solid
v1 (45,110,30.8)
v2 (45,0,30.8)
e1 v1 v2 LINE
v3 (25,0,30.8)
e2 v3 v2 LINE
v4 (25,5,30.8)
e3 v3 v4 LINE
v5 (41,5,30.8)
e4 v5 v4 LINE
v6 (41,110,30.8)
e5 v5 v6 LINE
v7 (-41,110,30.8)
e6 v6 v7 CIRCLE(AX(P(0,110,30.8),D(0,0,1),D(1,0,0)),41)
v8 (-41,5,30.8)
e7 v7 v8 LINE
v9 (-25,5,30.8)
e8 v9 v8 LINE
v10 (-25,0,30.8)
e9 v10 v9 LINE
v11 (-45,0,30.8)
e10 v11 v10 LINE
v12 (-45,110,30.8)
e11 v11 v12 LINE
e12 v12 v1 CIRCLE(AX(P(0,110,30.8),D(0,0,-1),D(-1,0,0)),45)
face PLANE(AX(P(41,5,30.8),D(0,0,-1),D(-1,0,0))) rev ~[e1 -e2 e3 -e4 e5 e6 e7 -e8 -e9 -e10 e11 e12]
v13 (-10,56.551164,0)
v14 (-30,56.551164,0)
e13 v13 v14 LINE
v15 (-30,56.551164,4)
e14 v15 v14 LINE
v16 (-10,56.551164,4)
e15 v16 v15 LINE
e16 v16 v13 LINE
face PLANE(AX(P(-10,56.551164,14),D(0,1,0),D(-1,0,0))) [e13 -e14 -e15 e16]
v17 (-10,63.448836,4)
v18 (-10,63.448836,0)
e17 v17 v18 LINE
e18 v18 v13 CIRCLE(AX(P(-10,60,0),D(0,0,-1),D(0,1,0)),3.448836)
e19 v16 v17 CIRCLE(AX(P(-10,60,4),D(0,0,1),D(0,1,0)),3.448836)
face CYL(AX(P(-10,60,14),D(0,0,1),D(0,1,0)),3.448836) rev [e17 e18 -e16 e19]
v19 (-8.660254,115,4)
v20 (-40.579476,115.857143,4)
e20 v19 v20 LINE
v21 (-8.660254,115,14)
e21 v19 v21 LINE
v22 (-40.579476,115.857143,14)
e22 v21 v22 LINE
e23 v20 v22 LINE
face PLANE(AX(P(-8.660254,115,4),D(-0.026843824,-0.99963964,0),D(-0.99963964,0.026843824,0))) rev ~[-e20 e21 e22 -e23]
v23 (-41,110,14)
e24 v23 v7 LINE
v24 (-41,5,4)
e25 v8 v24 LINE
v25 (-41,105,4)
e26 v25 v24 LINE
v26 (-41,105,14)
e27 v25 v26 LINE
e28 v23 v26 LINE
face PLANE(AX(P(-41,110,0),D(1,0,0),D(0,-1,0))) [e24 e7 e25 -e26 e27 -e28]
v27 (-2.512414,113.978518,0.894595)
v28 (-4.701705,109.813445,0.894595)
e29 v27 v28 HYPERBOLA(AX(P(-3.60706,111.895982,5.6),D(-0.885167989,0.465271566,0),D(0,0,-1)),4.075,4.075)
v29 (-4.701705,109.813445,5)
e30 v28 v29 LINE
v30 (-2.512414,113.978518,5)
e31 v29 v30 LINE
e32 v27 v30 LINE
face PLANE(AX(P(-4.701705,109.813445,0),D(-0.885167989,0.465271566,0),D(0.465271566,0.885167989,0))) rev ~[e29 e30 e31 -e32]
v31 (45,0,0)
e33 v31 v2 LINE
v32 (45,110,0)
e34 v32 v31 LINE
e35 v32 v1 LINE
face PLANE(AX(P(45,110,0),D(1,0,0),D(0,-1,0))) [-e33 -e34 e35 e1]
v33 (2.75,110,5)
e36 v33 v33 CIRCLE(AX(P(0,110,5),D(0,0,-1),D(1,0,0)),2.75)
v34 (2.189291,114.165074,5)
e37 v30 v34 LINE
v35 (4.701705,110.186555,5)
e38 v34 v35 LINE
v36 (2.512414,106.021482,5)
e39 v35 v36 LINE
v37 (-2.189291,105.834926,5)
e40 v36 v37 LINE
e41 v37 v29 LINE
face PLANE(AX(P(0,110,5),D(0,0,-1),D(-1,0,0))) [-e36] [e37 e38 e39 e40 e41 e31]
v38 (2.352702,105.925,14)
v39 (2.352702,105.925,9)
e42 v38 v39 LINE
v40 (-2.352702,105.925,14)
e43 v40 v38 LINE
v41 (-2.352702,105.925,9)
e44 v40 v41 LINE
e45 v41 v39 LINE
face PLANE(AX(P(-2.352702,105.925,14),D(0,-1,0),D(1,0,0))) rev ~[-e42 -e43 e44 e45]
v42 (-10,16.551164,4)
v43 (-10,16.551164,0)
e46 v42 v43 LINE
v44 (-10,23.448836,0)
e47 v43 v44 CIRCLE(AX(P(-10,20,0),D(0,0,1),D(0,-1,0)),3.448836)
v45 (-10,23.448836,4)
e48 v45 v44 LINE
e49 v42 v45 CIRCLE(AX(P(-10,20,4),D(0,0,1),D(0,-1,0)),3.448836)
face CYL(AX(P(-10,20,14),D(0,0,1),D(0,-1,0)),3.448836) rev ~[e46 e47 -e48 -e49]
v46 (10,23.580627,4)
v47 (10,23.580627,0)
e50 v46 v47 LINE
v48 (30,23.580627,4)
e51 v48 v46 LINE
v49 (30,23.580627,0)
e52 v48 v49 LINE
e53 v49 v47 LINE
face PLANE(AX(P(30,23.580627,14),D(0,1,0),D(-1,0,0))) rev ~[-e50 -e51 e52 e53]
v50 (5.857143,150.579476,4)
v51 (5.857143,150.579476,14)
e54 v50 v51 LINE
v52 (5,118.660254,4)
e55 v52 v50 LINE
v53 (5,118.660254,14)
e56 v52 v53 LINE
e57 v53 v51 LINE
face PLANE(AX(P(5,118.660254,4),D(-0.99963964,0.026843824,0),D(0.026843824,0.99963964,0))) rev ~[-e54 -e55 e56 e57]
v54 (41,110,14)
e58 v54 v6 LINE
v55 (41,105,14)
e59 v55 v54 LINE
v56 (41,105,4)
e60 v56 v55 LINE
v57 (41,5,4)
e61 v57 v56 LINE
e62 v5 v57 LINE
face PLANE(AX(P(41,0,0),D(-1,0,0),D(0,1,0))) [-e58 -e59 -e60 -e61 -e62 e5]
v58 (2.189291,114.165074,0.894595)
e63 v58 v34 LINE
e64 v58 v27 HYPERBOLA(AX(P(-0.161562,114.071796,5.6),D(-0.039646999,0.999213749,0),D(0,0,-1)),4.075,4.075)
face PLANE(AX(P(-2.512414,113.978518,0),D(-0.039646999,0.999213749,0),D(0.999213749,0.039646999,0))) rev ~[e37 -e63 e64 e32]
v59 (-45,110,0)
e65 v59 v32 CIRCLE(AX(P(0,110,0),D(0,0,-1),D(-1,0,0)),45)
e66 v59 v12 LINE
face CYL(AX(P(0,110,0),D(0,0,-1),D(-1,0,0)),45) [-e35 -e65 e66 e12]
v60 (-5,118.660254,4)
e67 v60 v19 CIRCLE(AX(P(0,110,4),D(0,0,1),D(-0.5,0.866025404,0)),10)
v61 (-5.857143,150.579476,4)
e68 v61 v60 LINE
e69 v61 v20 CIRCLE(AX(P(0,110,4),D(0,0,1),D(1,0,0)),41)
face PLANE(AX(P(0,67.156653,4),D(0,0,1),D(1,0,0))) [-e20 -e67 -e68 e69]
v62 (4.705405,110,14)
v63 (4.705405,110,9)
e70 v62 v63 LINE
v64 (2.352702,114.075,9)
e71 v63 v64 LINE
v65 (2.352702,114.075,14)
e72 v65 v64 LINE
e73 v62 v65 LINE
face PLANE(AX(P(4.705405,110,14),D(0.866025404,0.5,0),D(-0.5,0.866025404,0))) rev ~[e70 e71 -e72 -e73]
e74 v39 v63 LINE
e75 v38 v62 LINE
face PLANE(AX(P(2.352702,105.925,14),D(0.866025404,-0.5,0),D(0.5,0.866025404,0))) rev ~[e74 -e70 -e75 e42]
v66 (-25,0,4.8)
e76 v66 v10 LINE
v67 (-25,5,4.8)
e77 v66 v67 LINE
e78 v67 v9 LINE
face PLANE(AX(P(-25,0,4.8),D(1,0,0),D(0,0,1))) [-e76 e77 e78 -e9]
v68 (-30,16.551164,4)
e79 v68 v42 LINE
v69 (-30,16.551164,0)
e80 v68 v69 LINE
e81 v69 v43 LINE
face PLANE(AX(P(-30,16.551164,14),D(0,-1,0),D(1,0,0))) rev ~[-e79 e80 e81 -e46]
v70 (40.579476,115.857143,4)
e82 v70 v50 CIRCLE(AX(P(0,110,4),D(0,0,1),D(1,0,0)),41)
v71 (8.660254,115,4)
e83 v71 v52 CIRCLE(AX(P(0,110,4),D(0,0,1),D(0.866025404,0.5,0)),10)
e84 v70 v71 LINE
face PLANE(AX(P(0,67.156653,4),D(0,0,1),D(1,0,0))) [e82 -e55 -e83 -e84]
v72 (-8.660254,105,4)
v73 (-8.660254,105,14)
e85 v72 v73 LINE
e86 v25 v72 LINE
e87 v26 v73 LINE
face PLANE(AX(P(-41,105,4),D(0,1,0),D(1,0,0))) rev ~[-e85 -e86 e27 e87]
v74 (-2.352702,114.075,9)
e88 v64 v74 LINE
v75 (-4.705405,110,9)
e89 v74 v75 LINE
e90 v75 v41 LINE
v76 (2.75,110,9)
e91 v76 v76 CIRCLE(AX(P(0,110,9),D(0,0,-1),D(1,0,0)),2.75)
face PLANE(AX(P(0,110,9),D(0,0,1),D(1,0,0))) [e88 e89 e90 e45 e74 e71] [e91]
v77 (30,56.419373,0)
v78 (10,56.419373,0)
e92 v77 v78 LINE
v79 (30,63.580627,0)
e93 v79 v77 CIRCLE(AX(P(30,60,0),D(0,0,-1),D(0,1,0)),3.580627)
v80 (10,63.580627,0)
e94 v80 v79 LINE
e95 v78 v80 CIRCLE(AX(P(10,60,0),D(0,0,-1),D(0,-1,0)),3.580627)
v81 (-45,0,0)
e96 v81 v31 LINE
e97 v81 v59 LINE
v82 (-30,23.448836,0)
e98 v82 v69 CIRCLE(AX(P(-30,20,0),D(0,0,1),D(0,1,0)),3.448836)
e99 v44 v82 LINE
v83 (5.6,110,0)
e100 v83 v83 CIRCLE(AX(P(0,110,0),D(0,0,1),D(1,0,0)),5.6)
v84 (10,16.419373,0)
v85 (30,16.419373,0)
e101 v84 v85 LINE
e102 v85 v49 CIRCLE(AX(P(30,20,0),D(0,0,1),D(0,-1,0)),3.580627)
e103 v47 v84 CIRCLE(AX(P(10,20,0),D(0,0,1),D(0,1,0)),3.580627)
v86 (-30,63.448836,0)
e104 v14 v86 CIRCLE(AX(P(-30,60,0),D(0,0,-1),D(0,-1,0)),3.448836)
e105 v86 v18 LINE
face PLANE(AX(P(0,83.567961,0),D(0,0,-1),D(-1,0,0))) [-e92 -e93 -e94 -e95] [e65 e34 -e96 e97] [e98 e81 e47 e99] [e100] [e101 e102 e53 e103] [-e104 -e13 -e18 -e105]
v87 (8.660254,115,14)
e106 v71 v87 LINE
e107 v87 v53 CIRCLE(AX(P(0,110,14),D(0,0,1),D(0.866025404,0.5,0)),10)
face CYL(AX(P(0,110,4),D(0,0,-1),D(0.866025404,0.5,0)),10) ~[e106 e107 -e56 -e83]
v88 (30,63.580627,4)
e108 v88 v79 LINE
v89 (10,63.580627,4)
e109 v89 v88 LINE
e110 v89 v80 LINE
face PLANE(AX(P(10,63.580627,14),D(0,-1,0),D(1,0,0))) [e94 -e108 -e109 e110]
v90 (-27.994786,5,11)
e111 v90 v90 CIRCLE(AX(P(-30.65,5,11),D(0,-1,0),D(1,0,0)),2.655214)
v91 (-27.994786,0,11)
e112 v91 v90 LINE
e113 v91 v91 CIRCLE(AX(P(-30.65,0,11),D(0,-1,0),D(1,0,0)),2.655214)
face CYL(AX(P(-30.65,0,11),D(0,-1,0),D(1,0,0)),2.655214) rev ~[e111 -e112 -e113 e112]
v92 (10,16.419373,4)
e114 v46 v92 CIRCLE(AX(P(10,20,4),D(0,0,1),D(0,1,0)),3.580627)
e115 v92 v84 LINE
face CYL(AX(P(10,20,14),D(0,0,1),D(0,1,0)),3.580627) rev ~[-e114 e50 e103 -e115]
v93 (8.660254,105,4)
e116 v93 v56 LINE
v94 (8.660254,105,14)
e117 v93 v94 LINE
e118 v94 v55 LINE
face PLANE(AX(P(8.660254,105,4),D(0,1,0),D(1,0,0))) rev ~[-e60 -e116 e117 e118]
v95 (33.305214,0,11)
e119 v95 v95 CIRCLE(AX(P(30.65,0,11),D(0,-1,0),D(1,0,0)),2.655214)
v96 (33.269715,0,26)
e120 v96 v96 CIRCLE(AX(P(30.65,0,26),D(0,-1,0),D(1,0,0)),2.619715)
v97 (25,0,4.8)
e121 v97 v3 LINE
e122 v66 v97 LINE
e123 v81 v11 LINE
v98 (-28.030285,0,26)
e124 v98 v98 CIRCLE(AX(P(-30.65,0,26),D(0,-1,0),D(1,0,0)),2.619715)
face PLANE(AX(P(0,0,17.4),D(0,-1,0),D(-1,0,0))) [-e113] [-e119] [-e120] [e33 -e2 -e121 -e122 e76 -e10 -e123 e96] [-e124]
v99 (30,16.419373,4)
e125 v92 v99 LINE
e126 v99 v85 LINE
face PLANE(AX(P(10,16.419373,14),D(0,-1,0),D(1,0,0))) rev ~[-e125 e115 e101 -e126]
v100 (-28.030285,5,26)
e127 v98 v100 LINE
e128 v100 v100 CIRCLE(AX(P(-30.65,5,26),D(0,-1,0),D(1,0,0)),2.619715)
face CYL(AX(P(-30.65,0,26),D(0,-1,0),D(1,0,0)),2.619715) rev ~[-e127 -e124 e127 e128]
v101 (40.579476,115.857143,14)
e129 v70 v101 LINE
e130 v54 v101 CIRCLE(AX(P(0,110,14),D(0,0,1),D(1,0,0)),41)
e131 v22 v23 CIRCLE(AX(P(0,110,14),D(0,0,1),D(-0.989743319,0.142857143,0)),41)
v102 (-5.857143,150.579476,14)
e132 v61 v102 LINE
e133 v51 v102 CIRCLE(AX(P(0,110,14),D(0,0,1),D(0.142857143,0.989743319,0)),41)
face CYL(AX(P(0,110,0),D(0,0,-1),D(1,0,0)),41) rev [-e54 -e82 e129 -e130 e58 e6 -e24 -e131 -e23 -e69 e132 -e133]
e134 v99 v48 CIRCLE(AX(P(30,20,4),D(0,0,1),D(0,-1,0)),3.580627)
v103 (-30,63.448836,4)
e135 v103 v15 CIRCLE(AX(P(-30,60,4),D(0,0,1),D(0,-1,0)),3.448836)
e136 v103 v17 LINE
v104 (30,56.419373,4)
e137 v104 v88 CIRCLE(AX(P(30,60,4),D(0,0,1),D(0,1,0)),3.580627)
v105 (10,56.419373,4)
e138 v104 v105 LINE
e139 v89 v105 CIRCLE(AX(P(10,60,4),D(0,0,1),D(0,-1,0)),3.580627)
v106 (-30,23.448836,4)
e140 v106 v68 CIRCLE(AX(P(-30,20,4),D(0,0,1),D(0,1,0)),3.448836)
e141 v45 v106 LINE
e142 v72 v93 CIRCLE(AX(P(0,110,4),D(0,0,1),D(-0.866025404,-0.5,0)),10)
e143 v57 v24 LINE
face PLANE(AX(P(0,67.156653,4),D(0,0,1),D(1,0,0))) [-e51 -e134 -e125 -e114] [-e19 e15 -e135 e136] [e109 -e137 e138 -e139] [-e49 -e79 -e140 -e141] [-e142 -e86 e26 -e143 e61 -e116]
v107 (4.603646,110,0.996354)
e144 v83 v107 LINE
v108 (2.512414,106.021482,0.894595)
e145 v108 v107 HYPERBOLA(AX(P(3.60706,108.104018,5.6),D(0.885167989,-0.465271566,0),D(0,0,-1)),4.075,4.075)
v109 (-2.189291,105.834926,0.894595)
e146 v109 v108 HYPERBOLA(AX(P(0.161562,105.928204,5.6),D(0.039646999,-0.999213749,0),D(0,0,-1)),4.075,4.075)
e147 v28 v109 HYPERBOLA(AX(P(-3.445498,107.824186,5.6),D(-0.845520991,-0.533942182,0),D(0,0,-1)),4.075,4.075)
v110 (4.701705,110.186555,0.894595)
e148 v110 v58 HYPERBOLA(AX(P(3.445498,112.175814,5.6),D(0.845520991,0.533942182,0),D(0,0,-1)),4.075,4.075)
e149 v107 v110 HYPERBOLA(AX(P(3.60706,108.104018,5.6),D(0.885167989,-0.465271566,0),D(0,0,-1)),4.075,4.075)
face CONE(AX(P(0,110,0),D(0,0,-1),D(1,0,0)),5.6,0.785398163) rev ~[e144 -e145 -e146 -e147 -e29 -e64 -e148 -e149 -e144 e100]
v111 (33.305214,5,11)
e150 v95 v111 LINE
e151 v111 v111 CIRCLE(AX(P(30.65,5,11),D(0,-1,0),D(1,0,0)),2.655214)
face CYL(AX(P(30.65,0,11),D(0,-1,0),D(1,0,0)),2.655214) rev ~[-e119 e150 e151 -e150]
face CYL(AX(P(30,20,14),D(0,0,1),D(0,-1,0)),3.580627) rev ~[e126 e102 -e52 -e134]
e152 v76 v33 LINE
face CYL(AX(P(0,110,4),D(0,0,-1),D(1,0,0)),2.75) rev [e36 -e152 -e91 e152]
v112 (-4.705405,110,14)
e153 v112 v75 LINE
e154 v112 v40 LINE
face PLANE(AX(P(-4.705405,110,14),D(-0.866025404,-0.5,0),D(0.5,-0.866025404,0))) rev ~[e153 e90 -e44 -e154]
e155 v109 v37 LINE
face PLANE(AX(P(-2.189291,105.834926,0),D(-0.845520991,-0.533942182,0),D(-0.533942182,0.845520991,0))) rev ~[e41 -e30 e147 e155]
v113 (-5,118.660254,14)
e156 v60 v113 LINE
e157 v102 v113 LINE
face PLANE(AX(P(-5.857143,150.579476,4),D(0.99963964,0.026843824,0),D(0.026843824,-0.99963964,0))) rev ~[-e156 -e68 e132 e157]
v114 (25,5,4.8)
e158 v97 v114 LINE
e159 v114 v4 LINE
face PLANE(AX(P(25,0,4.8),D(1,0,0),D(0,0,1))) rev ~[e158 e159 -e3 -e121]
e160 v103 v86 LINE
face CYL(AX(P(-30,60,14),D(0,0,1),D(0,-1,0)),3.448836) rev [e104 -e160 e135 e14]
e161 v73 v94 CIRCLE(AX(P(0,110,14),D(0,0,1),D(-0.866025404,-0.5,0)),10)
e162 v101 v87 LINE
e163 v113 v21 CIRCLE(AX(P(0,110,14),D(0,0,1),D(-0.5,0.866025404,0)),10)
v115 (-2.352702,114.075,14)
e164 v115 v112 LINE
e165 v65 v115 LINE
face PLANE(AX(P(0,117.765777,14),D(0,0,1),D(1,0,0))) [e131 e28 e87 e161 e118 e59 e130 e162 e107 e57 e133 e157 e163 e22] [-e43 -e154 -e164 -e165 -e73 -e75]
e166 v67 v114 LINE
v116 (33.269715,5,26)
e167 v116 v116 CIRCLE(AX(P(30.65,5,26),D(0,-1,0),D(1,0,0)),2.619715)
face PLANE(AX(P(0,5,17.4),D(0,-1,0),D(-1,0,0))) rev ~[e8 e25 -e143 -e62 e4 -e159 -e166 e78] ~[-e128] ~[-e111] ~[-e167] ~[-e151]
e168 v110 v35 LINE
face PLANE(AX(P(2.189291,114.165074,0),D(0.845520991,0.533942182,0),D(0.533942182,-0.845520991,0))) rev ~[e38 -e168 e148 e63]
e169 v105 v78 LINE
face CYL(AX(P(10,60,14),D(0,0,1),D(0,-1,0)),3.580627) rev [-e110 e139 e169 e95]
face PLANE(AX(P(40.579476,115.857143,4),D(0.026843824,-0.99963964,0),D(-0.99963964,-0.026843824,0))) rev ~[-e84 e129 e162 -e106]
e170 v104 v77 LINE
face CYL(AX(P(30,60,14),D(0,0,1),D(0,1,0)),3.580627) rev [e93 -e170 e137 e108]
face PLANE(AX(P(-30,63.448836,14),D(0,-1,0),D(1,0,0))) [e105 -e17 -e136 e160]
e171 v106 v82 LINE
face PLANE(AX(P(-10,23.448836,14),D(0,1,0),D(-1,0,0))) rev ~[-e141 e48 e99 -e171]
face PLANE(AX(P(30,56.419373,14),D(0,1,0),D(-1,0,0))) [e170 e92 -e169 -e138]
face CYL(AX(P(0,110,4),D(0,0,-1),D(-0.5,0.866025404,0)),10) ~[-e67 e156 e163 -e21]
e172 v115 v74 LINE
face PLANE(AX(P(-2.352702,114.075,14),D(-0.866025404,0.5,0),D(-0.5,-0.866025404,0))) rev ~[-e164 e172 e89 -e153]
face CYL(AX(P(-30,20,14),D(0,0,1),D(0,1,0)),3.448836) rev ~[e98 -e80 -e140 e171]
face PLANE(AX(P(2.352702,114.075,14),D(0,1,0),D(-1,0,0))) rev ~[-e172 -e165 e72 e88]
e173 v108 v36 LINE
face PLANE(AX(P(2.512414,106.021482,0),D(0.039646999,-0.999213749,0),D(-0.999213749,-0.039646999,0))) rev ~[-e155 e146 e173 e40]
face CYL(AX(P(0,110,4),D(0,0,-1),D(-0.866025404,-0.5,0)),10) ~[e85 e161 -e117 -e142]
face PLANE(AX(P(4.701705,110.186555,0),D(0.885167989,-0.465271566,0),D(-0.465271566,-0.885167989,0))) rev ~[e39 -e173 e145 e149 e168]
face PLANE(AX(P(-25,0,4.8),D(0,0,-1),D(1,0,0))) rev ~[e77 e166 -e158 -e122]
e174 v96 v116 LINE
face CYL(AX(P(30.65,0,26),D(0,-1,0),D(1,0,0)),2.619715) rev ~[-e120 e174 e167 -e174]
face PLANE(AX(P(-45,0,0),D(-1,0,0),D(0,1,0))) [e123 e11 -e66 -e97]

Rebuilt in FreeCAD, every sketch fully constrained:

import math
import FreeCAD as App
import Part
import Sketcher

V = App.Vector
Q = App.Units.Quantity

doc = App.newDocument("Part")
body = doc.addObject("PartDesign::Body", "Body")

sketch1 = doc.addObject("Sketcher::SketchObject", "Sketch")
body.addObject(sketch1)
sketch1.AttachmentSupport = (doc.XY_Plane, [""])
sketch1.MapMode = "FlatFace"
sketch1.addGeometry(Part.LineSegment(V(-41, 0, 0), V(41, 0, 0)), False)
sketch1.addGeometry(Part.LineSegment(V(41, 0, 0), V(41, 110, 0)), False)
sketch1.addGeometry(Part.ArcOfCircle(Part.Circle(V(0, 110, 0), V(0, 0, 1), 41), math.radians(0), math.radians(180)), False)
sketch1.addGeometry(Part.LineSegment(V(-41, 110, 0), V(-41, 0, 0)), False)
sketch1.addConstraint(Sketcher.Constraint("Coincident", 0, 2, 1, 1))
sketch1.addConstraint(Sketcher.Constraint("Tangent", 1, 2, 2, 1))
sketch1.addConstraint(Sketcher.Constraint("Tangent", 2, 2, 3, 1))
sketch1.addConstraint(Sketcher.Constraint("Coincident", 3, 2, 0, 1))
sketch1.addConstraint(Sketcher.Constraint("Horizontal", 0))
sketch1.addConstraint(Sketcher.Constraint("Vertical", 1))
sketch1.addConstraint(Sketcher.Constraint("Vertical", 3))
sketch1.addConstraint(Sketcher.Constraint("Symmetric", 0, 2, 3, 2, -1, 1))
sketch1.addConstraint(Sketcher.Constraint("Radius", 2, 41.0))
sketch1.addConstraint(Sketcher.Constraint("DistanceY", 1, 1, 1, 2, 110.0))
pad1 = doc.addObject("PartDesign::Pad", "Pad")
body.addObject(pad1)
pad1.Profile = sketch1
pad1.Length = 4

sketch2 = doc.addObject("Sketcher::SketchObject", "Sketch001")
body.addObject(sketch2)
sketch2.AttachmentSupport = (doc.XY_Plane, [""])
sketch2.MapMode = "FlatFace"
sketch2.AttachmentOffset = App.Placement(V(0, 0, 4), App.Rotation())
sketch2.addGeometry(Part.LineSegment(V(-41, 105, 0), V(-8.660254, 105, 0)), False)
sketch2.addGeometry(Part.ArcOfCircle(Part.Circle(V(0, 110, 0), V(0, 0, 1), 10), math.radians(-150), math.radians(-30)), False)
sketch2.addGeometry(Part.LineSegment(V(8.660254, 105, 0), V(41, 105, 0)), False)
sketch2.addGeometry(Part.LineSegment(V(41, 105, 0), V(41, 110, 0)), False)
sketch2.addGeometry(Part.ArcOfCircle(Part.Circle(V(0, 110, 0), V(0, 0, 1), 41), math.radians(0), math.radians(8.213211)), False)
sketch2.addGeometry(Part.LineSegment(V(40.579476, 115.857143, 0), V(8.660254, 115, 0)), False)
sketch2.addGeometry(Part.ArcOfCircle(Part.Circle(V(0, 110, 0), V(0, 0, 1), 10), math.radians(30), math.radians(60)), False)
sketch2.addGeometry(Part.LineSegment(V(5, 118.660254, 0), V(5.857143, 150.579476, 0)), False)
sketch2.addGeometry(Part.ArcOfCircle(Part.Circle(V(0, 110, 0), V(0, 0, 1), 41), math.radians(81.786789), math.radians(98.213211)), False)
sketch2.addGeometry(Part.LineSegment(V(-5.857143, 150.579476, 0), V(-5, 118.660254, 0)), False)
sketch2.addGeometry(Part.ArcOfCircle(Part.Circle(V(0, 110, 0), V(0, 0, 1), 10), math.radians(120), math.radians(150)), False)
sketch2.addGeometry(Part.LineSegment(V(-8.660254, 115, 0), V(-40.579476, 115.857143, 0)), False)
sketch2.addGeometry(Part.ArcOfCircle(Part.Circle(V(0, 110, 0), V(0, 0, 1), 41), math.radians(171.786789), math.radians(180)), False)
sketch2.addGeometry(Part.LineSegment(V(-41, 110, 0), V(-41, 105, 0)), False)
sketch2.addGeometry(Part.Circle(V(0, 110, 0), V(0, 0, 1), 2.75), False)
sketch2.addConstraint(Sketcher.Constraint("Coincident", 0, 2, 1, 1))
sketch2.addConstraint(Sketcher.Constraint("Coincident", 1, 2, 2, 1))
sketch2.addConstraint(Sketcher.Constraint("Coincident", 2, 2, 3, 1))
sketch2.addConstraint(Sketcher.Constraint("Tangent", 3, 2, 4, 1))
sketch2.addConstraint(Sketcher.Constraint("Coincident", 4, 2, 5, 1))
sketch2.addConstraint(Sketcher.Constraint("Coincident", 5, 2, 6, 1))
sketch2.addConstraint(Sketcher.Constraint("Coincident", 6, 2, 7, 1))
sketch2.addConstraint(Sketcher.Constraint("Coincident", 7, 2, 8, 1))
sketch2.addConstraint(Sketcher.Constraint("Coincident", 8, 2, 9, 1))
sketch2.addConstraint(Sketcher.Constraint("Coincident", 9, 2, 10, 1))
sketch2.addConstraint(Sketcher.Constraint("Coincident", 10, 2, 11, 1))
sketch2.addConstraint(Sketcher.Constraint("Coincident", 11, 2, 12, 1))
sketch2.addConstraint(Sketcher.Constraint("Tangent", 12, 2, 13, 1))
sketch2.addConstraint(Sketcher.Constraint("Coincident", 13, 2, 0, 1))
sketch2.addConstraint(Sketcher.Constraint("Horizontal", 0))
sketch2.addConstraint(Sketcher.Constraint("Horizontal", 2))
sketch2.addConstraint(Sketcher.Constraint("Vertical", 3))
sketch2.addConstraint(Sketcher.Constraint("Vertical", 13))
sketch2.addConstraint(Sketcher.Constraint("Coincident", 4, 3, 1, 3))
sketch2.addConstraint(Sketcher.Constraint("Coincident", 6, 3, 1, 3))
sketch2.addConstraint(Sketcher.Constraint("Coincident", 8, 3, 1, 3))
sketch2.addConstraint(Sketcher.Constraint("Coincident", 10, 3, 1, 3))
sketch2.addConstraint(Sketcher.Constraint("Coincident", 12, 3, 1, 3))
sketch2.addConstraint(Sketcher.Constraint("Coincident", 14, 3, 1, 3))
sketch2.addConstraint(Sketcher.Constraint("Equal", 1, 6))
sketch2.addConstraint(Sketcher.Constraint("Equal", 4, 8))
sketch2.addConstraint(Sketcher.Constraint("Equal", 6, 10))
sketch2.addConstraint(Sketcher.Constraint("Equal", 8, 12))
sketch2.addConstraint(Sketcher.Constraint("Symmetric", 0, 2, 1, 2, -2))
sketch2.addConstraint(Sketcher.Constraint("Perpendicular", 5, 9))
sketch2.addConstraint(Sketcher.Constraint("Perpendicular", 7, 11))
sketch2.addConstraint(Sketcher.Constraint("Horizontal", 7, 2, 8, 2))
sketch2.addConstraint(Sketcher.Constraint("Horizontal", 6, 2, 9, 2))
sketch2.addConstraint(Sketcher.Constraint("Horizontal", 5, 2, 10, 2))
sketch2.addConstraint(Sketcher.Constraint("Vertical", 1, 2, 5, 2))
sketch2.addConstraint(Sketcher.Constraint("Equal", 5, 7))
sketch2.addConstraint(Sketcher.Constraint("Radius", 1, 10.0))
sketch2.addConstraint(Sketcher.Constraint("Radius", 4, 41.0))
sketch2.addConstraint(Sketcher.Constraint("Diameter", 14, 5.5))
sketch2.addConstraint(Sketcher.Constraint("DistanceY", 3, 1, 3, 2, 5.0))
sketch2.addConstraint(Sketcher.Constraint("DistanceY", -1, 1, 1, 3, 110.0))
sketch2.addConstraint(Sketcher.Constraint("Distance", 5, 31.930729))
pad2 = doc.addObject("PartDesign::Pad", "Pad001")
body.addObject(pad2)
pad2.Profile = sketch2
pad2.Length = 10

sketch3 = doc.addObject("Sketcher::SketchObject", "Sketch002")
body.addObject(sketch3)
sketch3.AttachmentSupport = (doc.XY_Plane, [""])
sketch3.MapMode = "FlatFace"
sketch3.addGeometry(Part.LineSegment(V(41, 0, 0), V(41, 110, 0)), False)
sketch3.addGeometry(Part.ArcOfCircle(Part.Circle(V(0, 110, 0), V(0, 0, 1), 41), math.radians(0), math.radians(180)), False)
sketch3.addGeometry(Part.LineSegment(V(-41, 110, 0), V(-41, 0, 0)), False)
sketch3.addGeometry(Part.LineSegment(V(-41, 0, 0), V(-45, 0, 0)), False)
sketch3.addGeometry(Part.LineSegment(V(-45, 0, 0), V(-45, 110, 0)), False)
sketch3.addGeometry(Part.ArcOfCircle(Part.Circle(V(0, 110, 0), V(0, 0, 1), 45), math.radians(0), math.radians(180)), False)
sketch3.addGeometry(Part.LineSegment(V(45, 110, 0), V(45, 0, 0)), False)
sketch3.addGeometry(Part.LineSegment(V(45, 0, 0), V(41, 0, 0)), False)
sketch3.addConstraint(Sketcher.Constraint("Tangent", 0, 2, 1, 1))
sketch3.addConstraint(Sketcher.Constraint("Tangent", 1, 2, 2, 1))
sketch3.addConstraint(Sketcher.Constraint("Coincident", 2, 2, 3, 1))
sketch3.addConstraint(Sketcher.Constraint("Coincident", 3, 2, 4, 1))
sketch3.addConstraint(Sketcher.Constraint("Tangent", 4, 2, 5, 2))
sketch3.addConstraint(Sketcher.Constraint("Tangent", 5, 1, 6, 1))
sketch3.addConstraint(Sketcher.Constraint("Coincident", 6, 2, 7, 1))
sketch3.addConstraint(Sketcher.Constraint("Coincident", 7, 2, 0, 1))
sketch3.addConstraint(Sketcher.Constraint("Vertical", 0))
sketch3.addConstraint(Sketcher.Constraint("Vertical", 2))
sketch3.addConstraint(Sketcher.Constraint("Horizontal", 3))
sketch3.addConstraint(Sketcher.Constraint("Vertical", 4))
sketch3.addConstraint(Sketcher.Constraint("Vertical", 6))
sketch3.addConstraint(Sketcher.Constraint("Horizontal", 7))
sketch3.addConstraint(Sketcher.Constraint("Coincident", 5, 3, 1, 3))
sketch3.addConstraint(Sketcher.Constraint("Symmetric", 3, 2, 6, 2, -1, 1))
sketch3.addConstraint(Sketcher.Constraint("PointOnObject", 2, 2, -1))
sketch3.addConstraint(Sketcher.Constraint("Radius", 1, 41.0))
sketch3.addConstraint(Sketcher.Constraint("Radius", 5, 45.0))
sketch3.addConstraint(Sketcher.Constraint("DistanceY", 0, 1, 0, 2, 110.0))
pad3 = doc.addObject("PartDesign::Pad", "Pad002")
body.addObject(pad3)
pad3.Profile = sketch3
pad3.Length = 30.8

sketch4 = doc.addObject("Sketcher::SketchObject", "Sketch003")
body.addObject(sketch4)
sketch4.AttachmentSupport = (doc.XY_Plane, [""])
sketch4.MapMode = "FlatFace"
sketch4.AttachmentOffset = App.Placement(V(0, 0, 4), App.Rotation())
sketch4.addGeometry(Part.Circle(V(0, 110, 0), V(0, 0, 1), 2.75), False)
sketch4.addConstraint(Sketcher.Constraint("PointOnObject", 0, 3, -2))
sketch4.addConstraint(Sketcher.Constraint("Diameter", 0, 5.5))
sketch4.addConstraint(Sketcher.Constraint("DistanceY", -1, 1, 0, 3, 110.0))
pocket1 = doc.addObject("PartDesign::Pocket", "Pocket")
body.addObject(pocket1)
pocket1.Profile = sketch4
pocket1.Length = 4

sketch5 = doc.addObject("Sketcher::SketchObject", "Sketch004")
body.addObject(sketch5)
sketch5.AttachmentSupport = (doc.XY_Plane, [""])
sketch5.MapMode = "FlatFace"
sketch5.addGeometry(Part.Circle(V(0, 110, 0), V(0, 0, 1), 2.75), False)
sketch5.addConstraint(Sketcher.Constraint("PointOnObject", 0, 3, -2))
sketch5.addConstraint(Sketcher.Constraint("Diameter", 0, 5.5))
sketch5.addConstraint(Sketcher.Constraint("DistanceY", -1, 1, 0, 3, 110.0))
doc.recompute()
hole = doc.addObject("PartDesign::Hole", "Hole")
body.addObject(hole)
hole.Profile = sketch5
hole.ThreadType = "None"
hole.Diameter = 5.5
hole.DepthType = "ThroughAll"
hole.HoleCutType = "Countersink"
hole.HoleCutDiameter = 11.2
hole.HoleCutCountersinkAngle = 90
hole.Reversed = True

sketch6 = doc.addObject("Sketcher::SketchObject", "Sketch005")
body.addObject(sketch6)
sketch6.AttachmentSupport = (doc.XY_Plane, [""])
sketch6.MapMode = "FlatFace"
sketch6.addGeometry(Part.LineSegment(V(-2.189291, 105.834926, 0), V(-4.701705, 109.813445, 0)), False)
sketch6.addGeometry(Part.LineSegment(V(-4.701705, 109.813445, 0), V(-2.512414, 113.978518, 0)), False)
sketch6.addGeometry(Part.LineSegment(V(-2.512414, 113.978518, 0), V(2.189291, 114.165074, 0)), False)
sketch6.addGeometry(Part.LineSegment(V(2.189291, 114.165074, 0), V(4.701705, 110.186555, 0)), False)
sketch6.addGeometry(Part.LineSegment(V(4.701705, 110.186555, 0), V(2.512414, 106.021482, 0)), False)
sketch6.addGeometry(Part.LineSegment(V(2.512414, 106.021482, 0), V(-2.189291, 105.834926, 0)), False)
sketch6.addConstraint(Sketcher.Constraint("Coincident", 0, 2, 1, 1))
sketch6.addConstraint(Sketcher.Constraint("Coincident", 1, 2, 2, 1))
sketch6.addConstraint(Sketcher.Constraint("Coincident", 2, 2, 3, 1))
sketch6.addConstraint(Sketcher.Constraint("Coincident", 3, 2, 4, 1))
sketch6.addConstraint(Sketcher.Constraint("Coincident", 4, 2, 5, 1))
sketch6.addConstraint(Sketcher.Constraint("Coincident", 5, 2, 0, 1))
sketch6.addConstraint(Sketcher.Constraint("Parallel", 0, 3))
sketch6.addConstraint(Sketcher.Constraint("Parallel", 1, 4))
sketch6.addConstraint(Sketcher.Constraint("Parallel", 2, 5))
sketch6.addConstraint(Sketcher.Constraint("Equal", 0, 1))
sketch6.addConstraint(Sketcher.Constraint("Equal", 1, 2))
sketch6.addConstraint(Sketcher.Constraint("Equal", 2, 3))
sketch6.addConstraint(Sketcher.Constraint("DistanceY", -1, 1, 1, 2, 113.978518))
sketch6.addConstraint(Sketcher.Constraint("DistanceX", -1, 1, 2, 2, 2.189291))
sketch6.addConstraint(Sketcher.Constraint("DistanceY", -1, 1, 4, 2, 106.021482))
sketch6.addConstraint(Sketcher.Constraint("DistanceX", 5, 2, -1, 1, 2.189291))
sketch6.addConstraint(Sketcher.Constraint("DistanceX", 0, 2, 1, 2, 2.189291))
sketch6.addConstraint(Sketcher.Constraint("DistanceY", 0, 2, 2, 2, 4.351629))
pocket2 = doc.addObject("PartDesign::Pocket", "Pocket001")
body.addObject(pocket2)
pocket2.Profile = sketch6
pocket2.Length = 5
pocket2.Reversed = True

sketch7 = doc.addObject("Sketcher::SketchObject", "Sketch006")
body.addObject(sketch7)
sketch7.AttachmentSupport = (doc.XY_Plane, [""])
sketch7.MapMode = "FlatFace"
sketch7.AttachmentOffset = App.Placement(V(0, 0, 14), App.Rotation())
sketch7.addGeometry(Part.LineSegment(V(4.705405, 110, 0), V(2.352702, 114.075, 0)), False)
sketch7.addGeometry(Part.LineSegment(V(2.352702, 114.075, 0), V(-2.352702, 114.075, 0)), False)
sketch7.addGeometry(Part.LineSegment(V(-2.352702, 114.075, 0), V(-4.705405, 110, 0)), False)
sketch7.addGeometry(Part.LineSegment(V(-4.705405, 110, 0), V(-2.352702, 105.925, 0)), False)
sketch7.addGeometry(Part.LineSegment(V(-2.352702, 105.925, 0), V(2.352702, 105.925, 0)), False)
sketch7.addGeometry(Part.LineSegment(V(2.352702, 105.925, 0), V(4.705405, 110, 0)), False)
sketch7.addConstraint(Sketcher.Constraint("Coincident", 0, 2, 1, 1))
sketch7.addConstraint(Sketcher.Constraint("Coincident", 1, 2, 2, 1))
sketch7.addConstraint(Sketcher.Constraint("Coincident", 2, 2, 3, 1))
sketch7.addConstraint(Sketcher.Constraint("Coincident", 3, 2, 4, 1))
sketch7.addConstraint(Sketcher.Constraint("Coincident", 4, 2, 5, 1))
sketch7.addConstraint(Sketcher.Constraint("Coincident", 5, 2, 0, 1))
sketch7.addConstraint(Sketcher.Constraint("Horizontal", 1))
sketch7.addConstraint(Sketcher.Constraint("Horizontal", 4))
sketch7.addConstraint(Sketcher.Constraint("Symmetric", 2, 2, 5, 2, -2))
sketch7.addConstraint(Sketcher.Constraint("Parallel", 0, 3))
sketch7.addConstraint(Sketcher.Constraint("Parallel", 2, 5))
sketch7.addConstraint(Sketcher.Constraint("Vertical", 1, 2, 3, 2))
sketch7.addConstraint(Sketcher.Constraint("Vertical", 0, 2, 4, 2))
sketch7.addConstraint(Sketcher.Constraint("Angle", 0, Q("120 deg")))
sketch7.addConstraint(Sketcher.Constraint("DistanceY", -1, 1, 2, 2, 110.0))
sketch7.addConstraint(Sketcher.Constraint("DistanceY", 3, 2, 1, 2, 8.15))
sketch7.addConstraint(Sketcher.Constraint("DistanceX", 1, 2, 1, 1, 4.705405))
pocket3 = doc.addObject("PartDesign::Pocket", "Pocket002")
body.addObject(pocket3)
pocket3.Profile = sketch7
pocket3.Length = 5

sketch8 = doc.addObject("Sketcher::SketchObject", "Sketch007")
body.addObject(sketch8)
sketch8.AttachmentSupport = (doc.XY_Plane, [""])
sketch8.MapMode = "FlatFace"
sketch8.AttachmentOffset = App.Placement(V(0, 0, 14), App.Rotation())
sketch8.addGeometry(Part.LineSegment(V(-10, 63.448836, 0), V(-30, 63.448836, 0)), False)
sketch8.addGeometry(Part.ArcOfCircle(Part.Circle(V(-30, 60, 0), V(0, 0, 1), 3.448836), math.radians(90), math.radians(270)), False)
sketch8.addGeometry(Part.LineSegment(V(-30, 56.551164, 0), V(-10, 56.551164, 0)), False)
sketch8.addGeometry(Part.ArcOfCircle(Part.Circle(V(-10, 60, 0), V(0, 0, 1), 3.448836), math.radians(-90), math.radians(90)), False)
sketch8.addGeometry(Part.LineSegment(V(30, 63.580627, 0), V(10, 63.580627, 0)), False)
sketch8.addGeometry(Part.ArcOfCircle(Part.Circle(V(10, 60, 0), V(0, 0, 1), 3.580627), math.radians(90), math.radians(270)), False)
sketch8.addGeometry(Part.LineSegment(V(10, 56.419373, 0), V(30, 56.419373, 0)), False)
sketch8.addGeometry(Part.ArcOfCircle(Part.Circle(V(30, 60, 0), V(0, 0, 1), 3.580627), math.radians(-90), math.radians(90)), False)
sketch8.addGeometry(Part.LineSegment(V(-30, 16.551164, 0), V(-10, 16.551164, 0)), False)
sketch8.addGeometry(Part.ArcOfCircle(Part.Circle(V(-10, 20, 0), V(0, 0, 1), 3.448836), math.radians(-90), math.radians(90)), False)
sketch8.addGeometry(Part.LineSegment(V(-10, 23.448836, 0), V(-30, 23.448836, 0)), False)
sketch8.addGeometry(Part.ArcOfCircle(Part.Circle(V(-30, 20, 0), V(0, 0, 1), 3.448836), math.radians(90), math.radians(270)), False)
sketch8.addGeometry(Part.LineSegment(V(10, 16.419373, 0), V(30, 16.419373, 0)), False)
sketch8.addGeometry(Part.ArcOfCircle(Part.Circle(V(30, 20, 0), V(0, 0, 1), 3.580627), math.radians(-90), math.radians(90)), False)
sketch8.addGeometry(Part.LineSegment(V(30, 23.580627, 0), V(10, 23.580627, 0)), False)
sketch8.addGeometry(Part.ArcOfCircle(Part.Circle(V(10, 20, 0), V(0, 0, 1), 3.580627), math.radians(90), math.radians(270)), False)
sketch8.addConstraint(Sketcher.Constraint("Tangent", 0, 2, 1, 1))
sketch8.addConstraint(Sketcher.Constraint("Tangent", 1, 2, 2, 1))
sketch8.addConstraint(Sketcher.Constraint("Tangent", 2, 2, 3, 1))
sketch8.addConstraint(Sketcher.Constraint("Tangent", 3, 2, 0, 1))
sketch8.addConstraint(Sketcher.Constraint("Tangent", 4, 2, 5, 1))
sketch8.addConstraint(Sketcher.Constraint("Tangent", 5, 2, 6, 1))
sketch8.addConstraint(Sketcher.Constraint("Tangent", 6, 2, 7, 1))
sketch8.addConstraint(Sketcher.Constraint("Tangent", 7, 2, 4, 1))
sketch8.addConstraint(Sketcher.Constraint("Tangent", 8, 2, 9, 1))
sketch8.addConstraint(Sketcher.Constraint("Tangent", 9, 2, 10, 1))
sketch8.addConstraint(Sketcher.Constraint("Tangent", 10, 2, 11, 1))
sketch8.addConstraint(Sketcher.Constraint("Tangent", 11, 2, 8, 1))
sketch8.addConstraint(Sketcher.Constraint("Tangent", 12, 2, 13, 1))
sketch8.addConstraint(Sketcher.Constraint("Tangent", 13, 2, 14, 1))
sketch8.addConstraint(Sketcher.Constraint("Tangent", 14, 2, 15, 1))
sketch8.addConstraint(Sketcher.Constraint("Tangent", 15, 2, 12, 1))
sketch8.addConstraint(Sketcher.Constraint("Horizontal", 0))
sketch8.addConstraint(Sketcher.Constraint("Horizontal", 2))
sketch8.addConstraint(Sketcher.Constraint("Horizontal", 4))
sketch8.addConstraint(Sketcher.Constraint("Horizontal", 6))
sketch8.addConstraint(Sketcher.Constraint("Horizontal", 8))
sketch8.addConstraint(Sketcher.Constraint("Horizontal", 10))
sketch8.addConstraint(Sketcher.Constraint("Horizontal", 12))
sketch8.addConstraint(Sketcher.Constraint("Horizontal", 14))
sketch8.addConstraint(Sketcher.Constraint("Equal", 3, 9))
sketch8.addConstraint(Sketcher.Constraint("Equal", 7, 13))
sketch8.addConstraint(Sketcher.Constraint("Symmetric", 3, 3, 5, 3, -2))
sketch8.addConstraint(Sketcher.Constraint("Symmetric", 11, 3, 13, 3, -2))
sketch8.addConstraint(Sketcher.Constraint("Vertical", 3, 3, 9, 3))
sketch8.addConstraint(Sketcher.Constraint("Vertical", 1, 3, 11, 3))
sketch8.addConstraint(Sketcher.Constraint("Vertical", 7, 3, 13, 3))
sketch8.addConstraint(Sketcher.Constraint("Vertical", 5, 3, 15, 3))
sketch8.addConstraint(Sketcher.Constraint("DistanceX", 0, 2, 0, 1, 20.0))
sketch8.addConstraint(Sketcher.Constraint("DistanceX", 1, 3, -1, 1, 30.0))
sketch8.addConstraint(Sketcher.Constraint("DistanceY", -1, 1, 1, 3, 60.0))
sketch8.addConstraint(Sketcher.Constraint("DistanceY", -1, 1, 9, 3, 20.0))
sketch8.addConstraint(Sketcher.Constraint("Radius", 1, 3.448836))
sketch8.addConstraint(Sketcher.Constraint("Radius", 5, 3.580627))
pocket4 = doc.addObject("PartDesign::Pocket", "Pocket003")
body.addObject(pocket4)
pocket4.Profile = sketch8
pocket4.Length = 14

sketch9 = doc.addObject("Sketcher::SketchObject", "Sketch008")
body.addObject(sketch9)
sketch9.AttachmentSupport = (doc.XZ_Plane, [""])
sketch9.MapMode = "FlatFace"
sketch9.AttachmentOffset = App.Placement(V(0, 0, -5), App.Rotation())
sketch9.addGeometry(Part.LineSegment(V(41, 4, 0), V(41, 30.8, 0)), False)
sketch9.addGeometry(Part.LineSegment(V(41, 30.8, 0), V(-41, 30.8, 0)), False)
sketch9.addGeometry(Part.LineSegment(V(-41, 30.8, 0), V(-41, 4, 0)), False)
sketch9.addGeometry(Part.LineSegment(V(-41, 4, 0), V(41, 4, 0)), False)
sketch9.addConstraint(Sketcher.Constraint("Coincident", 0, 2, 1, 1))
sketch9.addConstraint(Sketcher.Constraint("Coincident", 1, 2, 2, 1))
sketch9.addConstraint(Sketcher.Constraint("Coincident", 2, 2, 3, 1))
sketch9.addConstraint(Sketcher.Constraint("Coincident", 3, 2, 0, 1))
sketch9.addConstraint(Sketcher.Constraint("Vertical", 0))
sketch9.addConstraint(Sketcher.Constraint("Horizontal", 1))
sketch9.addConstraint(Sketcher.Constraint("Vertical", 2))
sketch9.addConstraint(Sketcher.Constraint("Horizontal", 3))
sketch9.addConstraint(Sketcher.Constraint("DistanceX", 1, 2, 1, 1, 82.0))
sketch9.addConstraint(Sketcher.Constraint("DistanceY", 0, 1, 0, 2, 26.8))
sketch9.addConstraint(Sketcher.Constraint("DistanceX", -1, 1, 0, 2, 41.0))
sketch9.addConstraint(Sketcher.Constraint("DistanceY", -1, 1, 2, 2, 4.0))
pad4 = doc.addObject("PartDesign::Pad", "Pad003")
body.addObject(pad4)
pad4.Profile = sketch9
pad4.Length = 5

sketch10 = doc.addObject("Sketcher::SketchObject", "Sketch009")
body.addObject(sketch10)
sketch10.AttachmentSupport = (doc.XZ_Plane, [""])
sketch10.MapMode = "FlatFace"
sketch10.addGeometry(Part.Circle(V(-30.65, 26, 0), V(0, 0, 1), 2.619715), False)
sketch10.addGeometry(Part.LineSegment(V(-25, 30.8, 0), V(-25, 4.8, 0)), False)
sketch10.addGeometry(Part.LineSegment(V(-25, 4.8, 0), V(25, 4.8, 0)), False)
sketch10.addGeometry(Part.LineSegment(V(25, 4.8, 0), V(25, 30.8, 0)), False)
sketch10.addGeometry(Part.LineSegment(V(25, 30.8, 0), V(-25, 30.8, 0)), False)
sketch10.addGeometry(Part.Circle(V(30.65, 26, 0), V(0, 0, 1), 2.619715), False)
sketch10.addGeometry(Part.Circle(V(30.65, 11, 0), V(0, 0, 1), 2.655214), False)
sketch10.addGeometry(Part.Circle(V(-30.65, 11, 0), V(0, 0, 1), 2.655214), False)
sketch10.addConstraint(Sketcher.Constraint("Coincident", 1, 2, 2, 1))
sketch10.addConstraint(Sketcher.Constraint("Coincident", 2, 2, 3, 1))
sketch10.addConstraint(Sketcher.Constraint("Coincident", 3, 2, 4, 1))
sketch10.addConstraint(Sketcher.Constraint("Coincident", 4, 2, 1, 1))
sketch10.addConstraint(Sketcher.Constraint("Vertical", 1))
sketch10.addConstraint(Sketcher.Constraint("Horizontal", 2))
sketch10.addConstraint(Sketcher.Constraint("Vertical", 3))
sketch10.addConstraint(Sketcher.Constraint("Horizontal", 4))
sketch10.addConstraint(Sketcher.Constraint("Equal", 0, 5))
sketch10.addConstraint(Sketcher.Constraint("Equal", 6, 7))
sketch10.addConstraint(Sketcher.Constraint("Symmetric", 0, 3, 5, 3, -2))
sketch10.addConstraint(Sketcher.Constraint("Symmetric", 6, 3, 7, 3, -2))
sketch10.addConstraint(Sketcher.Constraint("Vertical", 5, 3, 6, 3))
sketch10.addConstraint(Sketcher.Constraint("DistanceX", 2, 1, 2, 2, 50.0))
sketch10.addConstraint(Sketcher.Constraint("DistanceY", 1, 2, 1, 1, 26.0))
sketch10.addConstraint(Sketcher.Constraint("DistanceY", -1, 1, 0, 3, 26.0))
sketch10.addConstraint(Sketcher.Constraint("DistanceY", -1, 1, 6, 3, 11.0))
sketch10.addConstraint(Sketcher.Constraint("DistanceX", 1, 2, -1, 1, 25.0))
sketch10.addConstraint(Sketcher.Constraint("DistanceY", -1, 1, 1, 2, 4.8))
sketch10.addConstraint(Sketcher.Constraint("DistanceX", 0, 3, 5, 3, 61.3))
sketch10.addConstraint(Sketcher.Constraint("Diameter", 0, 5.23943))
sketch10.addConstraint(Sketcher.Constraint("Diameter", 6, 5.310429))
pocket5 = doc.addObject("PartDesign::Pocket", "Pocket004")
body.addObject(pocket5)
pocket5.Profile = sketch10
pocket5.Length = 5

doc.recompute()
